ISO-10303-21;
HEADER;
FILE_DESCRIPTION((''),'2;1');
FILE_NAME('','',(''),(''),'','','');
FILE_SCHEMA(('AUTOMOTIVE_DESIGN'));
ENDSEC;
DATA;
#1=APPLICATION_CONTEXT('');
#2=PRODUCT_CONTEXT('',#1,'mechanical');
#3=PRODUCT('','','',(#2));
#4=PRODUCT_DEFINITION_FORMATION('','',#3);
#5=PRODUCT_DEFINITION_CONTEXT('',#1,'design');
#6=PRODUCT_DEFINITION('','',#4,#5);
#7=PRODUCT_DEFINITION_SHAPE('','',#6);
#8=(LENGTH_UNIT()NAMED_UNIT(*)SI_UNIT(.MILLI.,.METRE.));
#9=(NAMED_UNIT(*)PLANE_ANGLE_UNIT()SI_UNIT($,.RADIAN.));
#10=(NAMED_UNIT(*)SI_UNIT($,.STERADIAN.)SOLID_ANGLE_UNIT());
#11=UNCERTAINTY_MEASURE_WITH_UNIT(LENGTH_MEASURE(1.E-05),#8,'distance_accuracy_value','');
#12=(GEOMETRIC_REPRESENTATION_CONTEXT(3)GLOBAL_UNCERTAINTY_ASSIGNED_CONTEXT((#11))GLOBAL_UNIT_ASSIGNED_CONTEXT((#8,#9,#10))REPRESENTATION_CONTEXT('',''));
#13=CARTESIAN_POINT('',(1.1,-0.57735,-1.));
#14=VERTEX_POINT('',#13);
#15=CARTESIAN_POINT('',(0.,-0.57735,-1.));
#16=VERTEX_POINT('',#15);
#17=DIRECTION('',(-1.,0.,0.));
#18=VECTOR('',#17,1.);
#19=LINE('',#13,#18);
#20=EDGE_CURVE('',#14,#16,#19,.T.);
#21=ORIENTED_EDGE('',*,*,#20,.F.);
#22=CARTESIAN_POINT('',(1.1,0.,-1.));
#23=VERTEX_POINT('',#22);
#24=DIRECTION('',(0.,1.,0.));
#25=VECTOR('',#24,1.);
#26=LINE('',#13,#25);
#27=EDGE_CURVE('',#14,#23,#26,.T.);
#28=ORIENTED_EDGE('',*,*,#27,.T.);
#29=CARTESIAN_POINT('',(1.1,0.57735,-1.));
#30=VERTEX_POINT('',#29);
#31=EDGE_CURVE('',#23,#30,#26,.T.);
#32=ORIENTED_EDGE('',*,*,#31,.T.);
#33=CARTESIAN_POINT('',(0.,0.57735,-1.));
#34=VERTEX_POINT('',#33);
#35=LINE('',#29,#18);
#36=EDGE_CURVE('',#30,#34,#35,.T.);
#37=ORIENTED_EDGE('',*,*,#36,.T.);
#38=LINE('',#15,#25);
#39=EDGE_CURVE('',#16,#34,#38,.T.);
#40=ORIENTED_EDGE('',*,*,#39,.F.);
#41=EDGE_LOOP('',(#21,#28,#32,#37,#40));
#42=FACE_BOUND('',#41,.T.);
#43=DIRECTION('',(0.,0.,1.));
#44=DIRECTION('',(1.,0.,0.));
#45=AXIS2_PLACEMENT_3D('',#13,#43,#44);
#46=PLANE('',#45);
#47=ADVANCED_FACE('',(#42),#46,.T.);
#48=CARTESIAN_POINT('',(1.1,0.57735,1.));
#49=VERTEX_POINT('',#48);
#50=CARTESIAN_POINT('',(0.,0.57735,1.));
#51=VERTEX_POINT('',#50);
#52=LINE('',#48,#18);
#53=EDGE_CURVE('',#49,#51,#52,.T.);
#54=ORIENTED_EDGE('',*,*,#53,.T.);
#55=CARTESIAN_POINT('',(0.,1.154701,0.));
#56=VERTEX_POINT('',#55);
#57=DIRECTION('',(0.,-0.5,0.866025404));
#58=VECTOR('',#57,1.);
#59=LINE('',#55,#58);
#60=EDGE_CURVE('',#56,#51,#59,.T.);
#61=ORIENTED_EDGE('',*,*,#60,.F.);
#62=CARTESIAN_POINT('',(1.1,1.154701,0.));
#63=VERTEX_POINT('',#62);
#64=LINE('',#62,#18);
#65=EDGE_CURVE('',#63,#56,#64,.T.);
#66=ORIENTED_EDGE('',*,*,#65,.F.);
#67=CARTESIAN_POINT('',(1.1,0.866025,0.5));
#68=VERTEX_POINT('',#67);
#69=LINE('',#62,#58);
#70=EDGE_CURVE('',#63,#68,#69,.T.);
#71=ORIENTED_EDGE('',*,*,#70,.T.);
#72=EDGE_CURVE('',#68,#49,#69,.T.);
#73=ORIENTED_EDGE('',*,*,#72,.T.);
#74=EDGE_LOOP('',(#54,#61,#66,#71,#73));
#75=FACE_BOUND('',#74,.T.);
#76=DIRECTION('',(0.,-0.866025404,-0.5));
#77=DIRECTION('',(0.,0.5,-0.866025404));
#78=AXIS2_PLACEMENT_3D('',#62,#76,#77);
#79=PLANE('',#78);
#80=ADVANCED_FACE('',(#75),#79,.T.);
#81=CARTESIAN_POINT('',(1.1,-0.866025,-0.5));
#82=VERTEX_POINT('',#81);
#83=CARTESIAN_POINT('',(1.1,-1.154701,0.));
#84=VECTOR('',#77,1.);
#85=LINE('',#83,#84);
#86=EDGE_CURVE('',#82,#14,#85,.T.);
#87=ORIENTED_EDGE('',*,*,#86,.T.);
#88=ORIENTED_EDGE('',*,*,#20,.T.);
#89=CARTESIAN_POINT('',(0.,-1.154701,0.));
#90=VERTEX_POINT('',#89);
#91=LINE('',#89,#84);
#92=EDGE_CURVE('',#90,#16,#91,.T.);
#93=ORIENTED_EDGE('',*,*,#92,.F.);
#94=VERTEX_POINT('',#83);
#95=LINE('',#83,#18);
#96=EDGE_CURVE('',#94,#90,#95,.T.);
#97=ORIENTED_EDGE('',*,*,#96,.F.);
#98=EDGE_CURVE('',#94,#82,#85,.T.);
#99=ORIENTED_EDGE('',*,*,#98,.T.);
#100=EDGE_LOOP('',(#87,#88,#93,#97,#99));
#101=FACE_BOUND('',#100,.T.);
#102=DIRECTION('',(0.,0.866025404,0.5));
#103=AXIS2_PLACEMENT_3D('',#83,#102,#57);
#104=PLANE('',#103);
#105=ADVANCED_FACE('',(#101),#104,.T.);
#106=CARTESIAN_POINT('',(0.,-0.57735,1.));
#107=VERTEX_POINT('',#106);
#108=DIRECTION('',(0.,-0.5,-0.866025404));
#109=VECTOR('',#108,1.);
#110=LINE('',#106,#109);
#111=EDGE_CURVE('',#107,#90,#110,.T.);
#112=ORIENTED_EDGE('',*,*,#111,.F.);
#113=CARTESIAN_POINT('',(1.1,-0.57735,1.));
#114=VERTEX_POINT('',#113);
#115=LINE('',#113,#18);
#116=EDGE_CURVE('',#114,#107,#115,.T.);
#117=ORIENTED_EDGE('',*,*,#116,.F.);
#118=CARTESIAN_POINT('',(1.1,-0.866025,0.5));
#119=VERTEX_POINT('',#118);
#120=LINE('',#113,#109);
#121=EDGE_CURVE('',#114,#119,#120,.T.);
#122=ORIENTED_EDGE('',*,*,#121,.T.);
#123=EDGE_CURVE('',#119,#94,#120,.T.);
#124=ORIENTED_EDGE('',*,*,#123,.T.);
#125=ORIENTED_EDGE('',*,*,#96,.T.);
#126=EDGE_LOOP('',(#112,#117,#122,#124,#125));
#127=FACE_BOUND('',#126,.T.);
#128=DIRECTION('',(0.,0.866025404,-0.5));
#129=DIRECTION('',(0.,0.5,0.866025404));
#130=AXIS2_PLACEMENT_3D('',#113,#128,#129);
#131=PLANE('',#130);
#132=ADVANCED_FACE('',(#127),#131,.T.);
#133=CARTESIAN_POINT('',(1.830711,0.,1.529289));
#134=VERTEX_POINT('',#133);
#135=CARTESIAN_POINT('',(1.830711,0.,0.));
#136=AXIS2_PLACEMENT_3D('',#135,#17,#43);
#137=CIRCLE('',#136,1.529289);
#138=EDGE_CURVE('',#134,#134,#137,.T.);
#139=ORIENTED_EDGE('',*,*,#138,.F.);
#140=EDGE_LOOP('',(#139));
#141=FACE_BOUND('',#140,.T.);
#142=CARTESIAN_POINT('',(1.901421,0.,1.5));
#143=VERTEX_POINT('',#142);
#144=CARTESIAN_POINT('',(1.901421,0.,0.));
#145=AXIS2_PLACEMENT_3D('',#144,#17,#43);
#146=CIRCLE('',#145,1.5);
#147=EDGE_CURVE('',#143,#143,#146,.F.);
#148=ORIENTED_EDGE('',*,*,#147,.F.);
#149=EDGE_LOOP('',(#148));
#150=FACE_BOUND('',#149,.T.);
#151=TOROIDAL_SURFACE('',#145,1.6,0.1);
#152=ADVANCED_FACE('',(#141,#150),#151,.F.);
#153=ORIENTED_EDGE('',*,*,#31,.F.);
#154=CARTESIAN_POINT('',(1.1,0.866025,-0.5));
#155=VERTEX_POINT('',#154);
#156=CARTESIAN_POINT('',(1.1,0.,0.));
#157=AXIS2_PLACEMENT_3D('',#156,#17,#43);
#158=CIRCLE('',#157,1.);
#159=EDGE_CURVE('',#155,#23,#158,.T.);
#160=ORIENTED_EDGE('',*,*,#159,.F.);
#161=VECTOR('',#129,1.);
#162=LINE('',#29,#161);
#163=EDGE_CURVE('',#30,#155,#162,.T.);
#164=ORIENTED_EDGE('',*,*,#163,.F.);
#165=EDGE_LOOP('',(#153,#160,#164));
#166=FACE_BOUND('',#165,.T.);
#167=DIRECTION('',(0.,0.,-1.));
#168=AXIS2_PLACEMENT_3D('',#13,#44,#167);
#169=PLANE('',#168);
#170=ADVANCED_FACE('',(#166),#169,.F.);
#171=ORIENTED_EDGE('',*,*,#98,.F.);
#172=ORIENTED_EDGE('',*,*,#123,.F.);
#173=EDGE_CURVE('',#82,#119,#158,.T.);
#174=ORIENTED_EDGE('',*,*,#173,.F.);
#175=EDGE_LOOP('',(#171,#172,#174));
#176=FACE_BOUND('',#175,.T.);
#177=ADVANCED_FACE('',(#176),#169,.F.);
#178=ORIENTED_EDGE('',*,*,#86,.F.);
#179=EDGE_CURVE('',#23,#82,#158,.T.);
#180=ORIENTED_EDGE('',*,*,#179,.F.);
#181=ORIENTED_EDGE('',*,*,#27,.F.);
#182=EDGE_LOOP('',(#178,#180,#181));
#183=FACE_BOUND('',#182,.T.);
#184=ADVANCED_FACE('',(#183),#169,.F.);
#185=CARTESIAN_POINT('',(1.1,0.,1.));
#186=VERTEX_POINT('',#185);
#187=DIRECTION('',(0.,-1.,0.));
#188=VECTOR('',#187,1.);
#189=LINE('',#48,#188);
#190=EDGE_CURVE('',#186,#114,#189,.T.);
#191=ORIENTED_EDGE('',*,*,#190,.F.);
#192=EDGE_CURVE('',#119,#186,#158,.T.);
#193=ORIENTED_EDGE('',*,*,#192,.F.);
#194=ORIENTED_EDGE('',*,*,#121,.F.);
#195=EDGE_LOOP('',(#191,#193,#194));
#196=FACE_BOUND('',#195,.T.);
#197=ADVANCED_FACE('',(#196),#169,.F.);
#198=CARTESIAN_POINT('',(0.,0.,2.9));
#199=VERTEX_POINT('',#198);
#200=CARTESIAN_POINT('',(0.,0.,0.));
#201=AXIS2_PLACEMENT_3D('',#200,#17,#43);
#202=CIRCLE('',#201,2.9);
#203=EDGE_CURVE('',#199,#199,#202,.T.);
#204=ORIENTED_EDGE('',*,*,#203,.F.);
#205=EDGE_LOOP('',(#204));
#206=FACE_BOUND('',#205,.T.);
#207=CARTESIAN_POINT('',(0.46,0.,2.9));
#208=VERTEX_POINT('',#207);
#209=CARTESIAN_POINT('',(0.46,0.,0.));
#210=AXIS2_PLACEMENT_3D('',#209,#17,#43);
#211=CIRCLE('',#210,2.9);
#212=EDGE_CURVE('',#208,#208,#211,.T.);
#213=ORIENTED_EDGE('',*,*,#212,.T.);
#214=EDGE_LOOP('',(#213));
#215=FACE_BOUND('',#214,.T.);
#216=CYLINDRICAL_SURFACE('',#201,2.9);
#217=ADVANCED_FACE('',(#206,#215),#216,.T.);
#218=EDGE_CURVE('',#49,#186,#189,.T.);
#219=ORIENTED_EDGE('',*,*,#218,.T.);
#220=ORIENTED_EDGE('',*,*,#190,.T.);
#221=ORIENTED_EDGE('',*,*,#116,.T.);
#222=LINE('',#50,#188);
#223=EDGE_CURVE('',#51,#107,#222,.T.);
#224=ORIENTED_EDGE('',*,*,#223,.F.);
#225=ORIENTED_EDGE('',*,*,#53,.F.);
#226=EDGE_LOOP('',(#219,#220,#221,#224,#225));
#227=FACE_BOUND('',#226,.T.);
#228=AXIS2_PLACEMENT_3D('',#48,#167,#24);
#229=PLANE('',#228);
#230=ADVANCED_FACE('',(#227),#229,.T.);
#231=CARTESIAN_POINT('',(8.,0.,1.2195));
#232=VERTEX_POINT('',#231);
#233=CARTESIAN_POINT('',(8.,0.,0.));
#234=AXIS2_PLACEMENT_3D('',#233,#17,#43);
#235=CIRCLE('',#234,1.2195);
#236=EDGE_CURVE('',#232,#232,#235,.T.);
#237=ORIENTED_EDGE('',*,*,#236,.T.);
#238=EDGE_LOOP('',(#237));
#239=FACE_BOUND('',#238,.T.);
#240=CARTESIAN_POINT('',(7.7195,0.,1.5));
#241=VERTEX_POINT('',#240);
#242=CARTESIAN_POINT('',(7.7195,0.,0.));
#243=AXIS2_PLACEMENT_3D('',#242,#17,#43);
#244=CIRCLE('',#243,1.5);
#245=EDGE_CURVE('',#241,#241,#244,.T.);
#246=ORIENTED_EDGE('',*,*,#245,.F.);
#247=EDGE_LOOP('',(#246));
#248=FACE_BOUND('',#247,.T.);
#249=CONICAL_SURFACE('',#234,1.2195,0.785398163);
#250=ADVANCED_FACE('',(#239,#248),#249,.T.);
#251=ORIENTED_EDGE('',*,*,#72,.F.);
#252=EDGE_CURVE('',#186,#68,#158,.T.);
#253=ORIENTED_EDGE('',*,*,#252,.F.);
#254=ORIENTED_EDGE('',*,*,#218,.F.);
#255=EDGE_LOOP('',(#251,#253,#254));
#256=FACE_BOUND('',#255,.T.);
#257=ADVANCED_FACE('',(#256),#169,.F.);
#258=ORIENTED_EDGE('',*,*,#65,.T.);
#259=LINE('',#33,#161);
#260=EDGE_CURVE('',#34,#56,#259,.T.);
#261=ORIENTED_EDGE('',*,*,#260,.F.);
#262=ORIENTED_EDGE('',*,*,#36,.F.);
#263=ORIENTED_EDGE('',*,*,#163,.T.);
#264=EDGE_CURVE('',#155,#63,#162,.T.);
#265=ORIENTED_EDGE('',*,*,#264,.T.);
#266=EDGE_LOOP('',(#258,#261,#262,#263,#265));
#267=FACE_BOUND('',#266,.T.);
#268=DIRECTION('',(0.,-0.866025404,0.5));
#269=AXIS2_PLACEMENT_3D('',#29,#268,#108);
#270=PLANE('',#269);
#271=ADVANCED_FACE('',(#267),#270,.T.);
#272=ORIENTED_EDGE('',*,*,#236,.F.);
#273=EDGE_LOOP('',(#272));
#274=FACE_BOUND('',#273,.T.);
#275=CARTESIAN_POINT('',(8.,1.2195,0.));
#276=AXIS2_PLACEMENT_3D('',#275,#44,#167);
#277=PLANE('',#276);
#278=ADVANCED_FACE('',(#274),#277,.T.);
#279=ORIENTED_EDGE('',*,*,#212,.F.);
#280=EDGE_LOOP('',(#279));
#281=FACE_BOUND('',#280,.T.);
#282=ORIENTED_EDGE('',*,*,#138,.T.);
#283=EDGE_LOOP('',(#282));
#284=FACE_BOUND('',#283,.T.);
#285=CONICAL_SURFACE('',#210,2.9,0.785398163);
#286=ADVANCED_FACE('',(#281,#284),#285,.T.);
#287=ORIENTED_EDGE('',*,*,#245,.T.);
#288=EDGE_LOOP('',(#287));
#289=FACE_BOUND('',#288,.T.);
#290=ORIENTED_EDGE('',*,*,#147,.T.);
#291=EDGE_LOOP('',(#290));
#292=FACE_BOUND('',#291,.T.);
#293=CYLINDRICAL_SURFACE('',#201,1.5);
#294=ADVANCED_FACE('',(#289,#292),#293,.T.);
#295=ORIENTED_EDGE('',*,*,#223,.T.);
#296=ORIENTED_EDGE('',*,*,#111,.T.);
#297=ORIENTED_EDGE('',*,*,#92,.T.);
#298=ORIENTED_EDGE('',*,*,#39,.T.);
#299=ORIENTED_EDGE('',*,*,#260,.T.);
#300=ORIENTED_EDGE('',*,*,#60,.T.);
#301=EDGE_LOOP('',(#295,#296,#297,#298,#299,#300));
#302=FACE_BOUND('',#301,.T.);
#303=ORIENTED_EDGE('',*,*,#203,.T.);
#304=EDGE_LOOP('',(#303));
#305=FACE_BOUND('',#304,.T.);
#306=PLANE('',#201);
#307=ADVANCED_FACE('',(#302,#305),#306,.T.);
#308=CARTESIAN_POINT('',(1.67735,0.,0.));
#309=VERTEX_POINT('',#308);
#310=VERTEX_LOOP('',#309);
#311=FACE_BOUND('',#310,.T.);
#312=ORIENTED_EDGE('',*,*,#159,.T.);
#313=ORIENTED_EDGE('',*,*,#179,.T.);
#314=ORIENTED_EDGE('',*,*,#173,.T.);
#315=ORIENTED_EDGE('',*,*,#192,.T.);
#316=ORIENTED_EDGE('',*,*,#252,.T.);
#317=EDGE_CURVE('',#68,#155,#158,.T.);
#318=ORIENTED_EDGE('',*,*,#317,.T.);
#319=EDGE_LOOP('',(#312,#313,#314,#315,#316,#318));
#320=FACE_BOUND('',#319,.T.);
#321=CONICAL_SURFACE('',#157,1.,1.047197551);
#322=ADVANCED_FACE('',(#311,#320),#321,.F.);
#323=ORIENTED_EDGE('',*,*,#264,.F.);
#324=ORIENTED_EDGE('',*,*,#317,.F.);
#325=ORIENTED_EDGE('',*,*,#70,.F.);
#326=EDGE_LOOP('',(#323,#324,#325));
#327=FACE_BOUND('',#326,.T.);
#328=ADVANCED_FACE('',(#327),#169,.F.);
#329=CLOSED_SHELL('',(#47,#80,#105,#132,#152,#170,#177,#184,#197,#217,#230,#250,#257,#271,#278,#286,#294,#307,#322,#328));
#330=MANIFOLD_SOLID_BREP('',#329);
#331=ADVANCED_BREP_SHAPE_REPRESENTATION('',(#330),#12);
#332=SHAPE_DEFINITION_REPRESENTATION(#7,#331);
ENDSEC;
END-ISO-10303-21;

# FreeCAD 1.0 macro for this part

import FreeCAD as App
import Part
import Sketcher
from FreeCAD import Vector
Q = App.Units.Quantity


def edges_at(feature, points):
    """Names of the edges that pass closest to the given points."""
    edges = feature.Shape.Edges
    near = lambda p: min(range(len(edges)), key=lambda i: edges[i].distToShape(Part.Vertex(*p))[0])
    return sorted({f"Edge{near(p) + 1}" for p in points})


def add_polygon(sketch, points):
    """Adds a closed chain of lines whose ends are joined by coincident constraints."""
    first, n = sketch.GeometryCount, len(points)
    for a, b in zip(points, points[1:] + points[:1]):
        sketch.addGeometry(Part.LineSegment(App.Vector(*a, 0), App.Vector(*b, 0)), False)
    for i in range(n):
        sketch.addConstraint(Sketcher.Constraint("Coincident", first + i, 2, first + (i + 1) % n, 1))

doc = App.newDocument("Part")
body = doc.addObject("PartDesign::Body", "Body")

# Sketch on XY plane
sketch1 = body.newObject("Sketcher::SketchObject", "Sketch")
sketch1.AttachmentSupport = (doc.getObject("XY_Plane"), [""])
sketch1.MapMode = "FlatFace"
add_polygon(sketch1, [(0, 2.9), (0, 0), (8, 0), (8, 1.2195), (7.7195, 1.5), (1.86, 1.5), (0.46, 2.9)])  # lines 0-6
sketch1.addConstraint(Sketcher.Constraint("Vertical", 0))
sketch1.addConstraint(Sketcher.Constraint("Horizontal", 1))
sketch1.addConstraint(Sketcher.Constraint("Vertical", 2))
sketch1.addConstraint(Sketcher.Constraint("Horizontal", 4))
sketch1.addConstraint(Sketcher.Constraint("Horizontal", 6))
sketch1.addConstraint(Sketcher.Constraint("Coincident", 0, 2, -1, 1))
sketch1.addConstraint(Sketcher.Constraint("Parallel", 3, 5))
sketch1.addConstraint(Sketcher.Constraint("DistanceX", 1, 1, 1, 2, Q("8 mm")))
sketch1.addConstraint(Sketcher.Constraint("Angle", 3, Q("135 deg")))
sketch1.addConstraint(Sketcher.Constraint("DistanceY", 0, 2, 0, 1, Q("2.9 mm")))
sketch1.addConstraint(Sketcher.Constraint("DistanceX", 6, 2, 6, 1, Q("0.46 mm")))
sketch1.addConstraint(Sketcher.Constraint("DistanceY", -1, 1, 3, 2, Q("1.5 mm")))
sketch1.addConstraint(Sketcher.Constraint("DistanceX", 4, 2, 4, 1, Q("5.8595 mm")))
revolution = body.newObject("PartDesign::Revolution", "Revolution")
revolution.Profile = sketch1
revolution.ReferenceAxis = (sketch1, ["H_Axis"])
revolution.Angle = 360
doc.recompute()

fillet = body.newObject("PartDesign::Fillet", "Fillet")
fillet.Base = (revolution, edges_at(revolution, [(1.86, 0, -1.5)]))
fillet.Radius = 0.1

# Sketch on XY plane
sketch2 = body.newObject("Sketcher::SketchObject", "Sketch001")
sketch2.AttachmentSupport = (doc.getObject("XY_Plane"), [""])
sketch2.MapMode = "FlatFace"
add_polygon(sketch2, [(1.1, 1), (0, 1), (0, 0), (1.67735, 0)])  # lines 0-3
sketch2.addConstraint(Sketcher.Constraint("Horizontal", 0))
sketch2.addConstraint(Sketcher.Constraint("Vertical", 1))
sketch2.addConstraint(Sketcher.Constraint("Horizontal", 2))
sketch2.addConstraint(Sketcher.Constraint("Coincident", 1, 2, -1, 1))
sketch2.addConstraint(Sketcher.Constraint("DistanceY", 1, 2, 1, 1, Q("1 mm")))
sketch2.addConstraint(Sketcher.Constraint("Angle", 3, Q("120 deg")))
sketch2.addConstraint(Sketcher.Constraint("DistanceX", 0, 2, 0, 1, Q("1.1 mm")))
groove = body.newObject("PartDesign::Groove", "Groove")
groove.Profile = sketch2
groove.ReferenceAxis = (sketch2, ["H_Axis"])
groove.Angle = 360

# Sketch on YZ plane
sketch3 = body.newObject("Sketcher::SketchObject", "Sketch002")
sketch3.AttachmentSupport = (doc.getObject("YZ_Plane"), [""])
sketch3.MapMode = "FlatFace"
add_polygon(sketch3, [(0.57735, -1), (-0.57735, -1), (-1.154701, 0), (-0.57735, 1), (0.57735, 1), (1.154701, 0)])  # lines 0-5
sketch3.addConstraint(Sketcher.Constraint("Horizontal", 0))
sketch3.addConstraint(Sketcher.Constraint("Horizontal", 3))
sketch3.addConstraint(Sketcher.Constraint("Symmetric", 0, 2, 3, 2, -1, 1))
sketch3.addConstraint(Sketcher.Constraint("Symmetric", 1, 2, 4, 2, -1, 1))
sketch3.addConstraint(Sketcher.Constraint("PointOnObject", 1, 2, -1))
sketch3.addConstraint(Sketcher.Constraint("Parallel", 2, 5))
sketch3.addConstraint(Sketcher.Constraint("Vertical", 0, 2, 2, 2))
sketch3.addConstraint(Sketcher.Constraint("Angle", 1, Q("120 deg")))
sketch3.addConstraint(Sketcher.Constraint("DistanceY", 0, 2, -1, 1, Q("1 mm")))
sketch3.addConstraint(Sketcher.Constraint("DistanceX", 0, 2, 0, 1, Q("1.154701 mm")))
pocket1 = body.newObject("PartDesign::Pocket", "Pocket")
pocket1.Profile = sketch3
pocket1.Length = 1.1
pocket1.Reversed = True

doc.recompute()
